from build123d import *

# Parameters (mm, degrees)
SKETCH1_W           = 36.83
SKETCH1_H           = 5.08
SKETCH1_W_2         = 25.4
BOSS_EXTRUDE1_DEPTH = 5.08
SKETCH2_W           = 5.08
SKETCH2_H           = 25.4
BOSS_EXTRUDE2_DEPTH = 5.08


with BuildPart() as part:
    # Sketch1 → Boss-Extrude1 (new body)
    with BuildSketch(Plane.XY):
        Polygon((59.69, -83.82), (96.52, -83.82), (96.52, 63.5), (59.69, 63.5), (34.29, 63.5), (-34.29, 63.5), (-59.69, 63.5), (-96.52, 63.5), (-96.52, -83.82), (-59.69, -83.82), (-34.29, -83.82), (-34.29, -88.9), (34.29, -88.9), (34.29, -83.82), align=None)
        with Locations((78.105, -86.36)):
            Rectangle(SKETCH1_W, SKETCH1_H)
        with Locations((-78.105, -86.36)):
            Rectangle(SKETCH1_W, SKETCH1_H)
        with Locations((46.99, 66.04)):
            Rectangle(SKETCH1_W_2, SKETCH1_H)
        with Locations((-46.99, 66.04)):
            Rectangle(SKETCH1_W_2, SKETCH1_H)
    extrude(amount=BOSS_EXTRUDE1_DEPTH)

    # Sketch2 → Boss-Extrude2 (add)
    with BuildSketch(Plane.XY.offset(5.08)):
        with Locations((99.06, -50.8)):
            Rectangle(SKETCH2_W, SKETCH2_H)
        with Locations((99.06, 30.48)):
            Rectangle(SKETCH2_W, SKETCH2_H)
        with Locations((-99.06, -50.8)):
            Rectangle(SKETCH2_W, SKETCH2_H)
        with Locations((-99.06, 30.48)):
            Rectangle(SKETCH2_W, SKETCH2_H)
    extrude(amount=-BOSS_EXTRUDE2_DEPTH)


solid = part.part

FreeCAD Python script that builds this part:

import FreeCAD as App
import Part
import Sketcher
Q = App.Units.Quantity

doc = App.newDocument("Part")
body = doc.addObject("PartDesign::Body", "Body")

# Sketch on XY plane
sketch1 = body.newObject("Sketcher::SketchObject", "Sketch")
sketch1.AttachmentSupport = (doc.getObject("XY_Plane"), [""])
sketch1.MapMode = "FlatFace"
sketch1.addGeometry([
    Part.LineSegment(App.Vector(96.52, 63.5, 0), App.Vector(59.69, 63.5, 0)),  # 0
    Part.LineSegment(App.Vector(59.69, 63.5, 0), App.Vector(59.69, 68.58, 0)),  # 1
    Part.LineSegment(App.Vector(59.69, 68.58, 0), App.Vector(34.29, 68.58, 0)),  # 2
    Part.LineSegment(App.Vector(34.29, 68.58, 0), App.Vector(34.29, 63.5, 0)),  # 3
    Part.LineSegment(App.Vector(34.29, 63.5, 0), App.Vector(-34.29, 63.5, 0)),  # 4
    Part.LineSegment(App.Vector(-34.29, 63.5, 0), App.Vector(-34.29, 68.58, 0)),  # 5
    Part.LineSegment(App.Vector(-34.29, 68.58, 0), App.Vector(-59.69, 68.58, 0)),  # 6
    Part.LineSegment(App.Vector(-59.69, 68.58, 0), App.Vector(-59.69, 63.5, 0)),  # 7
    Part.LineSegment(App.Vector(-59.69, 63.5, 0), App.Vector(-96.52, 63.5, 0)),  # 8
    Part.LineSegment(App.Vector(-96.52, 63.5, 0), App.Vector(-96.52, -88.9, 0)),  # 9
    Part.LineSegment(App.Vector(-96.52, -88.9, 0), App.Vector(-59.69, -88.9, 0)),  # 10
    Part.LineSegment(App.Vector(-59.69, -88.9, 0), App.Vector(-59.69, -83.82, 0)),  # 11
    Part.LineSegment(App.Vector(-59.69, -83.82, 0), App.Vector(-34.29, -83.82, 0)),  # 12
    Part.LineSegment(App.Vector(-34.29, -83.82, 0), App.Vector(-34.29, -88.9, 0)),  # 13
    Part.LineSegment(App.Vector(-34.29, -88.9, 0), App.Vector(34.29, -88.9, 0)),  # 14
    Part.LineSegment(App.Vector(34.29, -88.9, 0), App.Vector(34.29, -83.82, 0)),  # 15
    Part.LineSegment(App.Vector(34.29, -83.82, 0), App.Vector(59.69, -83.82, 0)),  # 16
    Part.LineSegment(App.Vector(59.69, -83.82, 0), App.Vector(59.69, -88.9, 0)),  # 17
    Part.LineSegment(App.Vector(59.69, -88.9, 0), App.Vector(96.52, -88.9, 0)),  # 18
    Part.LineSegment(App.Vector(96.52, -88.9, 0), App.Vector(96.52, 63.5, 0)),  # 19
], False)
sketch1.addConstraint([
    Sketcher.Constraint("Coincident", 0, 2, 1, 1),
    Sketcher.Constraint("Coincident", 1, 2, 2, 1),
    Sketcher.Constraint("Coincident", 2, 2, 3, 1),
    Sketcher.Constraint("Coincident", 3, 2, 4, 1),
    Sketcher.Constraint("Coincident", 4, 2, 5, 1),
    Sketcher.Constraint("Coincident", 5, 2, 6, 1),
    Sketcher.Constraint("Coincident", 6, 2, 7, 1),
    Sketcher.Constraint("Coincident", 7, 2, 8, 1),
    Sketcher.Constraint("Coincident", 8, 2, 9, 1),
    Sketcher.Constraint("Coincident", 9, 2, 10, 1),
    Sketcher.Constraint("Coincident", 10, 2, 11, 1),
    Sketcher.Constraint("Coincident", 11, 2, 12, 1),
    Sketcher.Constraint("Coincident", 12, 2, 13, 1),
    Sketcher.Constraint("Coincident", 13, 2, 14, 1),
    Sketcher.Constraint("Coincident", 14, 2, 15, 1),
    Sketcher.Constraint("Coincident", 15, 2, 16, 1),
    Sketcher.Constraint("Coincident", 16, 2, 17, 1),
    Sketcher.Constraint("Coincident", 17, 2, 18, 1),
    Sketcher.Constraint("Coincident", 18, 2, 19, 1),
    Sketcher.Constraint("Coincident", 19, 2, 0, 1),
    Sketcher.Constraint("Horizontal", 0),
    Sketcher.Constraint("Vertical", 1),
    Sketcher.Constraint("Horizontal", 2),
    Sketcher.Constraint("Vertical", 3),
    Sketcher.Constraint("Horizontal", 4),
    Sketcher.Constraint("Vertical", 5),
    Sketcher.Constraint("Horizontal", 6),
    Sketcher.Constraint("Vertical", 7),
    Sketcher.Constraint("Horizontal", 8),
    Sketcher.Constraint("Vertical", 9),
    Sketcher.Constraint("Horizontal", 10),
    Sketcher.Constraint("Vertical", 11),
    Sketcher.Constraint("Horizontal", 12),
    Sketcher.Constraint("Vertical", 13),
    Sketcher.Constraint("Horizontal", 14),
    Sketcher.Constraint("Vertical", 15),
    Sketcher.Constraint("Horizontal", 16),
    Sketcher.Constraint("Vertical", 17),
    Sketcher.Constraint("Horizontal", 18),
    Sketcher.Constraint("Vertical", 19),
    Sketcher.Constraint("Symmetric", 2, 2, 5, 2, -2),
    Sketcher.Constraint("Symmetric", 0, 2, 7, 2, -2),
    Sketcher.Constraint("Symmetric", 12, 2, 15, 2, -2),
    Sketcher.Constraint("Symmetric", 10, 2, 17, 2, -2),
    Sketcher.Constraint("Horizontal", 0, 2, 3, 2),
    Sketcher.Constraint("Horizontal", 10, 2, 13, 2),
    Sketcher.Constraint("Vertical", 7, 2, 10, 2),
    Sketcher.Constraint("Vertical", 5, 2, 12, 2),
    Sketcher.Constraint("Equal", 0, 8),
    Sketcher.Constraint("Equal", 7, 11),
    Sketcher.Constraint("DistanceX", 2, 2, 2, 1, Q("1 in")),
    Sketcher.Constraint("DistanceY", 9, 2, 9, 1, Q("6 in")),
    Sketcher.Constraint("DistanceX", 4, 2, 4, 1, Q("2.7 in")),
    Sketcher.Constraint("DistanceY", 1, 1, 1, 2, Q("0.2 in")),
    Sketcher.Constraint("DistanceX", 0, 2, 0, 1, Q("1.45 in")),
    Sketcher.Constraint("DistanceY", -1, 1, 0, 2, Q("2.5 in")),
])
pad1 = body.newObject("PartDesign::Pad", "Pad")
pad1.Profile = sketch1
pad1.Length = Q("0.2 in")

# Sketch on XY plane
sketch2 = body.newObject("Sketcher::SketchObject", "Sketch001")
sketch2.AttachmentSupport = (doc.getObject("XY_Plane"), [""])
sketch2.MapMode = "FlatFace"
sketch2.AttachmentOffset = App.Placement(App.Vector(0, 0, 0.2 * 25.4), App.Rotation())
sketch2.addGeometry([
    Part.LineSegment(App.Vector(96.52, -38.1, 0), App.Vector(96.52, -63.5, 0)),  # 0
    Part.LineSegment(App.Vector(96.52, -63.5, 0), App.Vector(101.6, -63.5, 0)),  # 1
    Part.LineSegment(App.Vector(101.6, -63.5, 0), App.Vector(101.6, -38.1, 0)),  # 2
    Part.LineSegment(App.Vector(101.6, -38.1, 0), App.Vector(96.52, -38.1, 0)),  # 3
    Part.LineSegment(App.Vector(96.52, 43.18, 0), App.Vector(96.52, 17.78, 0)),  # 4
    Part.LineSegment(App.Vector(96.52, 17.78, 0), App.Vector(101.6, 17.78, 0)),  # 5
    Part.LineSegment(App.Vector(101.6, 17.78, 0), App.Vector(101.6, 43.18, 0)),  # 6
    Part.LineSegment(App.Vector(101.6, 43.18, 0), App.Vector(96.52, 43.18, 0)),  # 7
    Part.LineSegment(App.Vector(-101.6, -38.1, 0), App.Vector(-101.6, -63.5, 0)),  # 8
    Part.LineSegment(App.Vector(-101.6, -63.5, 0), App.Vector(-96.52, -63.5, 0)),  # 9
    Part.LineSegment(App.Vector(-96.52, -63.5, 0), App.Vector(-96.52, -38.1, 0)),  # 10
    Part.LineSegment(App.Vector(-96.52, -38.1, 0), App.Vector(-101.6, -38.1, 0)),  # 11
    Part.LineSegment(App.Vector(-101.6, 43.18, 0), App.Vector(-101.6, 17.78, 0)),  # 12
    Part.LineSegment(App.Vector(-101.6, 17.78, 0), App.Vector(-96.52, 17.78, 0)),  # 13
    Part.LineSegment(App.Vector(-96.52, 17.78, 0), App.Vector(-96.52, 43.18, 0)),  # 14
    Part.LineSegment(App.Vector(-96.52, 43.18, 0), App.Vector(-101.6, 43.18, 0)),  # 15
], False)
sketch2.addConstraint([
    Sketcher.Constraint("Coincident", 0, 2, 1, 1),
    Sketcher.Constraint("Coincident", 1, 2, 2, 1),
    Sketcher.Constraint("Coincident", 2, 2, 3, 1),
    Sketcher.Constraint("Coincident", 3, 2, 0, 1),
    Sketcher.Constraint("Coincident", 4, 2, 5, 1),
    Sketcher.Constraint("Coincident", 5, 2, 6, 1),
    Sketcher.Constraint("Coincident", 6, 2, 7, 1),
    Sketcher.Constraint("Coincident", 7, 2, 4, 1),
    Sketcher.Constraint("Coincident", 8, 2, 9, 1),
    Sketcher.Constraint("Coincident", 9, 2, 10, 1),
    Sketcher.Constraint("Coincident", 10, 2, 11, 1),
    Sketcher.Constraint("Coincident", 11, 2, 8, 1),
    Sketcher.Constraint("Coincident", 12, 2, 13, 1),
    Sketcher.Constraint("Coincident", 13, 2, 14, 1),
    Sketcher.Constraint("Coincident", 14, 2, 15, 1),
    Sketcher.Constraint("Coincident", 15, 2, 12, 1),
    Sketcher.Constraint("Vertical", 0),
    Sketcher.Constraint("Horizontal", 1),
    Sketcher.Constraint("Vertical", 2),
    Sketcher.Constraint("Horizontal", 3),
    Sketcher.Constraint("Vertical", 4),
    Sketcher.Constraint("Horizontal", 5),
    Sketcher.Constraint("Vertical", 6),
    Sketcher.Constraint("Horizontal", 7),
    Sketcher.Constraint("Vertical", 8),
    Sketcher.Constraint("Horizontal", 9),
    Sketcher.Constraint("Vertical", 10),
    Sketcher.Constraint("Horizontal", 11),
    Sketcher.Constraint("Vertical", 12),
    Sketcher.Constraint("Horizontal", 13),
    Sketcher.Constraint("Vertical", 14),
    Sketcher.Constraint("Horizontal", 15),
    Sketcher.Constraint("Symmetric", 1, 2, 8, 2, -2),
    Sketcher.Constraint("Symmetric", 3, 2, 10, 2, -2),
    Sketcher.Constraint("Symmetric", 5, 2, 12, 2, -2),
    Sketcher.Constraint("Symmetric", 7, 2, 14, 2, -2),
    Sketcher.Constraint("Vertical", 3, 2, 4, 2),
    Sketcher.Constraint("Vertical", 2, 2, 5, 2),
    Sketcher.Constraint("Equal", 2, 4),
    Sketcher.Constraint("DistanceY", 0, 2, 0, 1, Q("1 in")),
    Sketcher.Constraint("DistanceX", 1, 1, 1, 2, Q("0.2 in")),
    Sketcher.Constraint("DistanceX", -1, 1, 1, 2, Q("4 in")),
    Sketcher.Constraint("DistanceY", 0, 2, -1, 1, Q("2.5 in")),
    Sketcher.Constraint("DistanceY", -1, 1, 4, 2, Q("0.7 in")),
])
pad2 = body.newObject("PartDesign::Pad", "Pad001")
pad2.Profile = sketch2
pad2.Length = Q("0.2 in")
pad2.Reversed = True

doc.recompute()
